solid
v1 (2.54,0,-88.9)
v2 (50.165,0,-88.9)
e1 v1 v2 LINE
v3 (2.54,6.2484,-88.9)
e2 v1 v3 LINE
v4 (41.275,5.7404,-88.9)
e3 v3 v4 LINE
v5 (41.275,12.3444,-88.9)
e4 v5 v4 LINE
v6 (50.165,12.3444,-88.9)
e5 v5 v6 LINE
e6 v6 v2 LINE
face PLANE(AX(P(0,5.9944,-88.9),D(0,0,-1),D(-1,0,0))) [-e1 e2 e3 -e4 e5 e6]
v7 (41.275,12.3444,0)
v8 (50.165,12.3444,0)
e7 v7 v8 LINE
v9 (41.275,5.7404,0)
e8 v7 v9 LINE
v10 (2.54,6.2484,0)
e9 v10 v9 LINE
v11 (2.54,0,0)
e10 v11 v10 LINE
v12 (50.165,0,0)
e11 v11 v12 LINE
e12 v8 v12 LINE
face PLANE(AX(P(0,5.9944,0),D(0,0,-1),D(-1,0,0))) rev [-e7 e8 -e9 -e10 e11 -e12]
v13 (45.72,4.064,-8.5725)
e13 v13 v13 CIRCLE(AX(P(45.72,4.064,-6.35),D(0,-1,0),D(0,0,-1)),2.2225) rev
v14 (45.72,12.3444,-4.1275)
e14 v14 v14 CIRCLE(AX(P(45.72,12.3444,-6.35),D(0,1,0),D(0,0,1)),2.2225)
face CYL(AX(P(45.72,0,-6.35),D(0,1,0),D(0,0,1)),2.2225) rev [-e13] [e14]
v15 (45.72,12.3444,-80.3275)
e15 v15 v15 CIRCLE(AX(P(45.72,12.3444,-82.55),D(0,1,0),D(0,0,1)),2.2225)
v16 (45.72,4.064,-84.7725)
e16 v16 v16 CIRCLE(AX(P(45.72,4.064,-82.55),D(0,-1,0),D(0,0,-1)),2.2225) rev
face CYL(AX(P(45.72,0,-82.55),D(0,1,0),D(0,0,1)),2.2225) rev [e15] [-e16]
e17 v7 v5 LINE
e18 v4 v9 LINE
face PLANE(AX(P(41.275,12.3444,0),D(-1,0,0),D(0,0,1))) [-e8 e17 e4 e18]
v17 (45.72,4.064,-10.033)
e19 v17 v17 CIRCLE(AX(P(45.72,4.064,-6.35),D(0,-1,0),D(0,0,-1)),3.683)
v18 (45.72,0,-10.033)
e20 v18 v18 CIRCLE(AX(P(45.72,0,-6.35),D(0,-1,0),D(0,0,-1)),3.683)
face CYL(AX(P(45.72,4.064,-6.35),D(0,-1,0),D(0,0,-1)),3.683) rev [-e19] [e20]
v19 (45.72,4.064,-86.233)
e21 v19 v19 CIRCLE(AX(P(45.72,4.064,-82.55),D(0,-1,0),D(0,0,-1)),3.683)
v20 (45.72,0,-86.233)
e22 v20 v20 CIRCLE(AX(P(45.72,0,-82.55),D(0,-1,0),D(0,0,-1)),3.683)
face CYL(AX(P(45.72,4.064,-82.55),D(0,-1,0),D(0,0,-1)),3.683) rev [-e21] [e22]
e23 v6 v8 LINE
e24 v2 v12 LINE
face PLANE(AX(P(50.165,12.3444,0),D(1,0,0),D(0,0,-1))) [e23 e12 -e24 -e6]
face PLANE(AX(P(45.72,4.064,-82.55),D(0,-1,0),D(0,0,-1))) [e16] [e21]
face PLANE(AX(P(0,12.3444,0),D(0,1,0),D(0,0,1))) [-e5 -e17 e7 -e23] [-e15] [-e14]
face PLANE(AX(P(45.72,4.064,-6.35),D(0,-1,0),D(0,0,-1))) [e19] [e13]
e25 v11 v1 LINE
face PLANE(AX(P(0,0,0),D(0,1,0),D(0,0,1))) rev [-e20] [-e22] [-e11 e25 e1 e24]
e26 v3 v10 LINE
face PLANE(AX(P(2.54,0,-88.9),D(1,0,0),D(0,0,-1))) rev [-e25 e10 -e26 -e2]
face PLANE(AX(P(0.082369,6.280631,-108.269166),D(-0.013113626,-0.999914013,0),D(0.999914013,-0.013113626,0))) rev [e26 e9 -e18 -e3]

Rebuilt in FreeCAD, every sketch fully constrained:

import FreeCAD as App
import Part
import Sketcher

V = App.Vector
Q = App.Units.Quantity


def add_polygon(sketch, points):
    """Adds a closed chain of lines whose ends are joined by coincident constraints."""
    first, n = sketch.GeometryCount, len(points)
    for a, b in zip(points, points[1:] + points[:1]):
        sketch.addGeometry(Part.LineSegment(App.Vector(*a, 0), App.Vector(*b, 0)), False)
    for i in range(n):
        sketch.addConstraint(Sketcher.Constraint("Coincident", first + i, 2, first + (i + 1) % n, 1))

doc = App.newDocument("Part")
body = doc.addObject("PartDesign::Body", "Body")

sketch1 = body.newObject("Sketcher::SketchObject", "Sketch")
sketch1.AttachmentSupport = (doc.getObject("XZ_Plane"), [""])
sketch1.MapMode = "FlatFace"
add_polygon(sketch1, [(0, -88.9), (0, 0), (41.275, 0), (41.275, -88.9)])
sketch1.addConstraint(Sketcher.Constraint("Vertical", 0))
sketch1.addConstraint(Sketcher.Constraint("Horizontal", 1))
sketch1.addConstraint(Sketcher.Constraint("Vertical", 2))
sketch1.addConstraint(Sketcher.Constraint("Horizontal", 3))
sketch1.addConstraint(Sketcher.Constraint("Coincident", 0, 2, -1, 1))
sketch1.addConstraint(Sketcher.Constraint("DistanceY", 0, 1, 0, 2, Q("3.5 in")))
sketch1.addConstraint(Sketcher.Constraint("DistanceX", 1, 1, 1, 2, Q("1.625 in")))
pad1 = body.newObject("PartDesign::Pad", "Pad")
pad1.Profile = sketch1
pad1.Length = Q("0.236 in")
pad1.Reversed = True

sketch2 = body.newObject("Sketcher::SketchObject", "Sketch001")
sketch2.AttachmentSupport = (doc.getObject("XZ_Plane"), [""])
sketch2.MapMode = "FlatFace"
add_polygon(sketch2, [(41.275, -88.9), (41.275, 0), (50.165, 0), (50.165, -88.9)])
sketch2.addConstraint(Sketcher.Constraint("Vertical", 0))
sketch2.addConstraint(Sketcher.Constraint("Horizontal", 1))
sketch2.addConstraint(Sketcher.Constraint("Vertical", 2))
sketch2.addConstraint(Sketcher.Constraint("Horizontal", 3))
sketch2.addConstraint(Sketcher.Constraint("PointOnObject", 0, 2, -1))
sketch2.addConstraint(Sketcher.Constraint("DistanceY", 0, 1, 0, 2, Q("3.5 in")))
sketch2.addConstraint(Sketcher.Constraint("DistanceX", 1, 1, 1, 2, Q("0.35 in")))
sketch2.addConstraint(Sketcher.Constraint("DistanceX", -1, 1, 0, 2, Q("1.625 in")))
pad2 = body.newObject("PartDesign::Pad", "Pad001")
pad2.Profile = sketch2
pad2.Length = Q("0.486 in")
pad2.Reversed = True

sketch3 = body.newObject("Sketcher::SketchObject", "Sketch002")
sketch3.AttachmentSupport = (doc.getObject("XZ_Plane"), [""])
sketch3.MapMode = "FlatFace"
sketch3.AttachmentOffset = App.Placement(V(0, 0, -0.486 * 25.4), App.Rotation())
sketch3.addGeometry(Part.Circle(V(45.72, -82.55, 0), V(0, 0, 1), 2.2225), False)
sketch3.addGeometry(Part.Circle(V(45.72, -6.35, 0), V(0, 0, 1), 2.2225), False)
sketch3.addConstraint(Sketcher.Constraint("Equal", 0, 1))
sketch3.addConstraint(Sketcher.Constraint("Vertical", 0, 3, 1, 3))
sketch3.addConstraint(Sketcher.Constraint("Diameter", 0, Q("0.175 in")))
sketch3.addConstraint(Sketcher.Constraint("DistanceY", 0, 3, 1, 3, Q("3 in")))
sketch3.addConstraint(Sketcher.Constraint("DistanceX", -1, 1, 0, 3, Q("1.8 in")))
sketch3.addConstraint(Sketcher.Constraint("DistanceY", 0, 3, -1, 1, Q("3.25 in")))
pocket1 = body.newObject("PartDesign::Pocket", "Pocket")
pocket1.Profile = sketch3
pocket1.Type = "ThroughAll"
pocket1.Midplane = True

sketch4 = body.newObject("Sketcher::SketchObject", "Sketch003")
sketch4.AttachmentSupport = (doc.getObject("XZ_Plane"), [""])
sketch4.MapMode = "FlatFace"
sketch4.addGeometry(Part.Circle(V(45.72, -6.35, 0), V(0, 0, 1), 3.683), False)
sketch4.addGeometry(Part.Circle(V(45.72, -82.55, 0), V(0, 0, 1), 3.683), False)
sketch4.addConstraint(Sketcher.Constraint("Equal", 0, 1))
sketch4.addConstraint(Sketcher.Constraint("Vertical", 0, 3, 1, 3))
sketch4.addConstraint(Sketcher.Constraint("Diameter", 0, Q("0.29 in")))
sketch4.addConstraint(Sketcher.Constraint("DistanceY", 1, 3, 0, 3, Q("3 in")))
sketch4.addConstraint(Sketcher.Constraint("DistanceX", -1, 1, 0, 3, Q("1.8 in")))
sketch4.addConstraint(Sketcher.Constraint("DistanceY", 0, 3, -1, 1, Q("0.25 in")))
pocket2 = body.newObject("PartDesign::Pocket", "Pocket001")
pocket2.Profile = sketch4
pocket2.Length = Q("0.16 in")

sketch5 = body.newObject("Sketcher::SketchObject", "Sketch004")
sketch5.AttachmentSupport = (doc.getObject("XZ_Plane"), [""])
sketch5.MapMode = "FlatFace"
sketch5.AttachmentOffset = App.Placement(V(0, 0, -0.236 * 25.4), App.Rotation())
add_polygon(sketch5, [(0, -88.9), (0, 0), (2.54, 0), (2.54, -88.9)])
sketch5.addConstraint(Sketcher.Constraint("Vertical", 0))
sketch5.addConstraint(Sketcher.Constraint("Horizontal", 1))
sketch5.addConstraint(Sketcher.Constraint("Vertical", 2))
sketch5.addConstraint(Sketcher.Constraint("Horizontal", 3))
sketch5.addConstraint(Sketcher.Constraint("Coincident", 0, 2, -1, 1))
sketch5.addConstraint(Sketcher.Constraint("DistanceX", 1, 1, 1, 2, Q("0.1 in")))
sketch5.addConstraint(Sketcher.Constraint("DistanceY", 0, 1, 0, 2, Q("3.5 in")))
pocket3 = body.newObject("PartDesign::Pocket", "Pocket002")
pocket3.Profile = sketch5
pocket3.Type = "ThroughAll"
pocket3.Midplane = True

sketch6 = body.newObject("Sketcher::SketchObject", "Sketch005")
sketch6.AttachmentSupport = (doc.getObject("XY_Plane"), [""])
sketch6.MapMode = "FlatFace"
add_polygon(sketch6, [(2.54, 6.2484), (2.54, 5.9944), (21.9075, 5.9944)])
sketch6.addConstraint(Sketcher.Constraint("Vertical", 0))
sketch6.addConstraint(Sketcher.Constraint("Horizontal", 1))
sketch6.addConstraint(Sketcher.Constraint("DistanceY", 0, 2, 0, 1, Q("0.01 in")))
sketch6.addConstraint(Sketcher.Constraint("DistanceX", -1, 1, 0, 2, Q("0.1 in")))
sketch6.addConstraint(Sketcher.Constraint("DistanceX", 1, 1, 1, 2, Q("0.7625 in")))
sketch6.addConstraint(Sketcher.Constraint("DistanceY", -1, 1, 0, 2, Q("0.236 in")))
pad3 = body.newObject("PartDesign::Pad", "Pad002")
pad3.Profile = sketch6
pad3.Length = Q("3.5 in")
pad3.Reversed = True

sketch7 = body.newObject("Sketcher::SketchObject", "Sketch006")
sketch7.AttachmentSupport = (doc.getObject("XY_Plane"), [""])
sketch7.MapMode = "FlatFace"
add_polygon(sketch7, [(41.275, 5.9944), (21.9075, 5.9944), (41.275, 5.7404)])
sketch7.addConstraint(Sketcher.Constraint("Horizontal", 0))
sketch7.addConstraint(Sketcher.Constraint("Vertical", 2))
sketch7.addConstraint(Sketcher.Constraint("DistanceY", 2, 1, 2, 2, Q("0.01 in")))
sketch7.addConstraint(Sketcher.Constraint("DistanceX", 0, 2, 0, 1, Q("0.7625 in")))
sketch7.addConstraint(Sketcher.Constraint("DistanceY", -1, 1, 0, 2, Q("0.236 in")))
sketch7.addConstraint(Sketcher.Constraint("DistanceX", -1, 1, 1, 2, Q("1.625 in")))
pocket4 = body.newObject("PartDesign::Pocket", "Pocket003")
pocket4.Profile = sketch7
pocket4.Length = Q("3.5 in")

doc.recompute()
